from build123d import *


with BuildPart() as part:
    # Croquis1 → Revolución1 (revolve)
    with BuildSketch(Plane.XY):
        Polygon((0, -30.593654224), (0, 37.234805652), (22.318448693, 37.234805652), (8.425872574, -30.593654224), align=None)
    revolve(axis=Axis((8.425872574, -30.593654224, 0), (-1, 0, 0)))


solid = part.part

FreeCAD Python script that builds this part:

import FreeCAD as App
import Part
import Sketcher

V = App.Vector
Q = App.Units.Quantity

doc = App.newDocument("Part")
body = doc.addObject("PartDesign::Body", "Body")

# Sketch on XY plane
sketch1 = doc.addObject("Sketcher::SketchObject", "Sketch")
body.addObject(sketch1)
sketch1.AttachmentSupport = (doc.XY_Plane, [""])
sketch1.MapMode = "FlatFace"
sketch1.addGeometry(Part.LineSegment(V(0, 37, 0), V(0, -31, 0)), False)
sketch1.addGeometry(Part.LineSegment(V(0, -31, 0), V(8, -31, 0)), False)
sketch1.addGeometry(Part.LineSegment(V(8, -31, 0), V(22, 37, 0)), False)
sketch1.addGeometry(Part.LineSegment(V(22, 37, 0), V(0, 37, 0)), False)
sketch1.addGeometry(Part.LineSegment(V(22, -31, 0), V(0, -31, 0)), True)  # axis
sketch1.addConstraint(Sketcher.Constraint("Coincident", 0, 2, 1, 1))
sketch1.addConstraint(Sketcher.Constraint("Coincident", 1, 2, 2, 1))
sketch1.addConstraint(Sketcher.Constraint("Coincident", 2, 2, 3, 1))
sketch1.addConstraint(Sketcher.Constraint("Coincident", 3, 2, 0, 1))
sketch1.addConstraint(Sketcher.Constraint("Vertical", 0))
sketch1.addConstraint(Sketcher.Constraint("Horizontal", 1))
sketch1.addConstraint(Sketcher.Constraint("Horizontal", 3))
sketch1.addConstraint(Sketcher.Constraint("Horizontal", 4))
sketch1.addConstraint(Sketcher.Constraint("Coincident", 4, 2, 0, 2))
sketch1.addConstraint(Sketcher.Constraint("PointOnObject", 0, 2, -2))
sketch1.addConstraint(Sketcher.Constraint("Vertical", 2, 2, 4, 1))
sketch1.addConstraint(Sketcher.Constraint("DistanceX", 3, 2, 3, 1, Q("22.318449 mm")))
sketch1.addConstraint(Sketcher.Constraint("DistanceY", 0, 2, 0, 1, Q("67.82846 mm")))
sketch1.addConstraint(Sketcher.Constraint("DistanceX", 1, 1, 1, 2, Q("8.425873 mm")))
sketch1.addConstraint(Sketcher.Constraint("DistanceY", 0, 2, -1, 1, Q("30.593654 mm")))
revolution = doc.addObject("PartDesign::Revolution", "Revolution")
body.addObject(revolution)
revolution.Profile = sketch1
revolution.ReferenceAxis = (sketch1, ["Axis0"])
revolution.Angle = 360

doc.recompute()
